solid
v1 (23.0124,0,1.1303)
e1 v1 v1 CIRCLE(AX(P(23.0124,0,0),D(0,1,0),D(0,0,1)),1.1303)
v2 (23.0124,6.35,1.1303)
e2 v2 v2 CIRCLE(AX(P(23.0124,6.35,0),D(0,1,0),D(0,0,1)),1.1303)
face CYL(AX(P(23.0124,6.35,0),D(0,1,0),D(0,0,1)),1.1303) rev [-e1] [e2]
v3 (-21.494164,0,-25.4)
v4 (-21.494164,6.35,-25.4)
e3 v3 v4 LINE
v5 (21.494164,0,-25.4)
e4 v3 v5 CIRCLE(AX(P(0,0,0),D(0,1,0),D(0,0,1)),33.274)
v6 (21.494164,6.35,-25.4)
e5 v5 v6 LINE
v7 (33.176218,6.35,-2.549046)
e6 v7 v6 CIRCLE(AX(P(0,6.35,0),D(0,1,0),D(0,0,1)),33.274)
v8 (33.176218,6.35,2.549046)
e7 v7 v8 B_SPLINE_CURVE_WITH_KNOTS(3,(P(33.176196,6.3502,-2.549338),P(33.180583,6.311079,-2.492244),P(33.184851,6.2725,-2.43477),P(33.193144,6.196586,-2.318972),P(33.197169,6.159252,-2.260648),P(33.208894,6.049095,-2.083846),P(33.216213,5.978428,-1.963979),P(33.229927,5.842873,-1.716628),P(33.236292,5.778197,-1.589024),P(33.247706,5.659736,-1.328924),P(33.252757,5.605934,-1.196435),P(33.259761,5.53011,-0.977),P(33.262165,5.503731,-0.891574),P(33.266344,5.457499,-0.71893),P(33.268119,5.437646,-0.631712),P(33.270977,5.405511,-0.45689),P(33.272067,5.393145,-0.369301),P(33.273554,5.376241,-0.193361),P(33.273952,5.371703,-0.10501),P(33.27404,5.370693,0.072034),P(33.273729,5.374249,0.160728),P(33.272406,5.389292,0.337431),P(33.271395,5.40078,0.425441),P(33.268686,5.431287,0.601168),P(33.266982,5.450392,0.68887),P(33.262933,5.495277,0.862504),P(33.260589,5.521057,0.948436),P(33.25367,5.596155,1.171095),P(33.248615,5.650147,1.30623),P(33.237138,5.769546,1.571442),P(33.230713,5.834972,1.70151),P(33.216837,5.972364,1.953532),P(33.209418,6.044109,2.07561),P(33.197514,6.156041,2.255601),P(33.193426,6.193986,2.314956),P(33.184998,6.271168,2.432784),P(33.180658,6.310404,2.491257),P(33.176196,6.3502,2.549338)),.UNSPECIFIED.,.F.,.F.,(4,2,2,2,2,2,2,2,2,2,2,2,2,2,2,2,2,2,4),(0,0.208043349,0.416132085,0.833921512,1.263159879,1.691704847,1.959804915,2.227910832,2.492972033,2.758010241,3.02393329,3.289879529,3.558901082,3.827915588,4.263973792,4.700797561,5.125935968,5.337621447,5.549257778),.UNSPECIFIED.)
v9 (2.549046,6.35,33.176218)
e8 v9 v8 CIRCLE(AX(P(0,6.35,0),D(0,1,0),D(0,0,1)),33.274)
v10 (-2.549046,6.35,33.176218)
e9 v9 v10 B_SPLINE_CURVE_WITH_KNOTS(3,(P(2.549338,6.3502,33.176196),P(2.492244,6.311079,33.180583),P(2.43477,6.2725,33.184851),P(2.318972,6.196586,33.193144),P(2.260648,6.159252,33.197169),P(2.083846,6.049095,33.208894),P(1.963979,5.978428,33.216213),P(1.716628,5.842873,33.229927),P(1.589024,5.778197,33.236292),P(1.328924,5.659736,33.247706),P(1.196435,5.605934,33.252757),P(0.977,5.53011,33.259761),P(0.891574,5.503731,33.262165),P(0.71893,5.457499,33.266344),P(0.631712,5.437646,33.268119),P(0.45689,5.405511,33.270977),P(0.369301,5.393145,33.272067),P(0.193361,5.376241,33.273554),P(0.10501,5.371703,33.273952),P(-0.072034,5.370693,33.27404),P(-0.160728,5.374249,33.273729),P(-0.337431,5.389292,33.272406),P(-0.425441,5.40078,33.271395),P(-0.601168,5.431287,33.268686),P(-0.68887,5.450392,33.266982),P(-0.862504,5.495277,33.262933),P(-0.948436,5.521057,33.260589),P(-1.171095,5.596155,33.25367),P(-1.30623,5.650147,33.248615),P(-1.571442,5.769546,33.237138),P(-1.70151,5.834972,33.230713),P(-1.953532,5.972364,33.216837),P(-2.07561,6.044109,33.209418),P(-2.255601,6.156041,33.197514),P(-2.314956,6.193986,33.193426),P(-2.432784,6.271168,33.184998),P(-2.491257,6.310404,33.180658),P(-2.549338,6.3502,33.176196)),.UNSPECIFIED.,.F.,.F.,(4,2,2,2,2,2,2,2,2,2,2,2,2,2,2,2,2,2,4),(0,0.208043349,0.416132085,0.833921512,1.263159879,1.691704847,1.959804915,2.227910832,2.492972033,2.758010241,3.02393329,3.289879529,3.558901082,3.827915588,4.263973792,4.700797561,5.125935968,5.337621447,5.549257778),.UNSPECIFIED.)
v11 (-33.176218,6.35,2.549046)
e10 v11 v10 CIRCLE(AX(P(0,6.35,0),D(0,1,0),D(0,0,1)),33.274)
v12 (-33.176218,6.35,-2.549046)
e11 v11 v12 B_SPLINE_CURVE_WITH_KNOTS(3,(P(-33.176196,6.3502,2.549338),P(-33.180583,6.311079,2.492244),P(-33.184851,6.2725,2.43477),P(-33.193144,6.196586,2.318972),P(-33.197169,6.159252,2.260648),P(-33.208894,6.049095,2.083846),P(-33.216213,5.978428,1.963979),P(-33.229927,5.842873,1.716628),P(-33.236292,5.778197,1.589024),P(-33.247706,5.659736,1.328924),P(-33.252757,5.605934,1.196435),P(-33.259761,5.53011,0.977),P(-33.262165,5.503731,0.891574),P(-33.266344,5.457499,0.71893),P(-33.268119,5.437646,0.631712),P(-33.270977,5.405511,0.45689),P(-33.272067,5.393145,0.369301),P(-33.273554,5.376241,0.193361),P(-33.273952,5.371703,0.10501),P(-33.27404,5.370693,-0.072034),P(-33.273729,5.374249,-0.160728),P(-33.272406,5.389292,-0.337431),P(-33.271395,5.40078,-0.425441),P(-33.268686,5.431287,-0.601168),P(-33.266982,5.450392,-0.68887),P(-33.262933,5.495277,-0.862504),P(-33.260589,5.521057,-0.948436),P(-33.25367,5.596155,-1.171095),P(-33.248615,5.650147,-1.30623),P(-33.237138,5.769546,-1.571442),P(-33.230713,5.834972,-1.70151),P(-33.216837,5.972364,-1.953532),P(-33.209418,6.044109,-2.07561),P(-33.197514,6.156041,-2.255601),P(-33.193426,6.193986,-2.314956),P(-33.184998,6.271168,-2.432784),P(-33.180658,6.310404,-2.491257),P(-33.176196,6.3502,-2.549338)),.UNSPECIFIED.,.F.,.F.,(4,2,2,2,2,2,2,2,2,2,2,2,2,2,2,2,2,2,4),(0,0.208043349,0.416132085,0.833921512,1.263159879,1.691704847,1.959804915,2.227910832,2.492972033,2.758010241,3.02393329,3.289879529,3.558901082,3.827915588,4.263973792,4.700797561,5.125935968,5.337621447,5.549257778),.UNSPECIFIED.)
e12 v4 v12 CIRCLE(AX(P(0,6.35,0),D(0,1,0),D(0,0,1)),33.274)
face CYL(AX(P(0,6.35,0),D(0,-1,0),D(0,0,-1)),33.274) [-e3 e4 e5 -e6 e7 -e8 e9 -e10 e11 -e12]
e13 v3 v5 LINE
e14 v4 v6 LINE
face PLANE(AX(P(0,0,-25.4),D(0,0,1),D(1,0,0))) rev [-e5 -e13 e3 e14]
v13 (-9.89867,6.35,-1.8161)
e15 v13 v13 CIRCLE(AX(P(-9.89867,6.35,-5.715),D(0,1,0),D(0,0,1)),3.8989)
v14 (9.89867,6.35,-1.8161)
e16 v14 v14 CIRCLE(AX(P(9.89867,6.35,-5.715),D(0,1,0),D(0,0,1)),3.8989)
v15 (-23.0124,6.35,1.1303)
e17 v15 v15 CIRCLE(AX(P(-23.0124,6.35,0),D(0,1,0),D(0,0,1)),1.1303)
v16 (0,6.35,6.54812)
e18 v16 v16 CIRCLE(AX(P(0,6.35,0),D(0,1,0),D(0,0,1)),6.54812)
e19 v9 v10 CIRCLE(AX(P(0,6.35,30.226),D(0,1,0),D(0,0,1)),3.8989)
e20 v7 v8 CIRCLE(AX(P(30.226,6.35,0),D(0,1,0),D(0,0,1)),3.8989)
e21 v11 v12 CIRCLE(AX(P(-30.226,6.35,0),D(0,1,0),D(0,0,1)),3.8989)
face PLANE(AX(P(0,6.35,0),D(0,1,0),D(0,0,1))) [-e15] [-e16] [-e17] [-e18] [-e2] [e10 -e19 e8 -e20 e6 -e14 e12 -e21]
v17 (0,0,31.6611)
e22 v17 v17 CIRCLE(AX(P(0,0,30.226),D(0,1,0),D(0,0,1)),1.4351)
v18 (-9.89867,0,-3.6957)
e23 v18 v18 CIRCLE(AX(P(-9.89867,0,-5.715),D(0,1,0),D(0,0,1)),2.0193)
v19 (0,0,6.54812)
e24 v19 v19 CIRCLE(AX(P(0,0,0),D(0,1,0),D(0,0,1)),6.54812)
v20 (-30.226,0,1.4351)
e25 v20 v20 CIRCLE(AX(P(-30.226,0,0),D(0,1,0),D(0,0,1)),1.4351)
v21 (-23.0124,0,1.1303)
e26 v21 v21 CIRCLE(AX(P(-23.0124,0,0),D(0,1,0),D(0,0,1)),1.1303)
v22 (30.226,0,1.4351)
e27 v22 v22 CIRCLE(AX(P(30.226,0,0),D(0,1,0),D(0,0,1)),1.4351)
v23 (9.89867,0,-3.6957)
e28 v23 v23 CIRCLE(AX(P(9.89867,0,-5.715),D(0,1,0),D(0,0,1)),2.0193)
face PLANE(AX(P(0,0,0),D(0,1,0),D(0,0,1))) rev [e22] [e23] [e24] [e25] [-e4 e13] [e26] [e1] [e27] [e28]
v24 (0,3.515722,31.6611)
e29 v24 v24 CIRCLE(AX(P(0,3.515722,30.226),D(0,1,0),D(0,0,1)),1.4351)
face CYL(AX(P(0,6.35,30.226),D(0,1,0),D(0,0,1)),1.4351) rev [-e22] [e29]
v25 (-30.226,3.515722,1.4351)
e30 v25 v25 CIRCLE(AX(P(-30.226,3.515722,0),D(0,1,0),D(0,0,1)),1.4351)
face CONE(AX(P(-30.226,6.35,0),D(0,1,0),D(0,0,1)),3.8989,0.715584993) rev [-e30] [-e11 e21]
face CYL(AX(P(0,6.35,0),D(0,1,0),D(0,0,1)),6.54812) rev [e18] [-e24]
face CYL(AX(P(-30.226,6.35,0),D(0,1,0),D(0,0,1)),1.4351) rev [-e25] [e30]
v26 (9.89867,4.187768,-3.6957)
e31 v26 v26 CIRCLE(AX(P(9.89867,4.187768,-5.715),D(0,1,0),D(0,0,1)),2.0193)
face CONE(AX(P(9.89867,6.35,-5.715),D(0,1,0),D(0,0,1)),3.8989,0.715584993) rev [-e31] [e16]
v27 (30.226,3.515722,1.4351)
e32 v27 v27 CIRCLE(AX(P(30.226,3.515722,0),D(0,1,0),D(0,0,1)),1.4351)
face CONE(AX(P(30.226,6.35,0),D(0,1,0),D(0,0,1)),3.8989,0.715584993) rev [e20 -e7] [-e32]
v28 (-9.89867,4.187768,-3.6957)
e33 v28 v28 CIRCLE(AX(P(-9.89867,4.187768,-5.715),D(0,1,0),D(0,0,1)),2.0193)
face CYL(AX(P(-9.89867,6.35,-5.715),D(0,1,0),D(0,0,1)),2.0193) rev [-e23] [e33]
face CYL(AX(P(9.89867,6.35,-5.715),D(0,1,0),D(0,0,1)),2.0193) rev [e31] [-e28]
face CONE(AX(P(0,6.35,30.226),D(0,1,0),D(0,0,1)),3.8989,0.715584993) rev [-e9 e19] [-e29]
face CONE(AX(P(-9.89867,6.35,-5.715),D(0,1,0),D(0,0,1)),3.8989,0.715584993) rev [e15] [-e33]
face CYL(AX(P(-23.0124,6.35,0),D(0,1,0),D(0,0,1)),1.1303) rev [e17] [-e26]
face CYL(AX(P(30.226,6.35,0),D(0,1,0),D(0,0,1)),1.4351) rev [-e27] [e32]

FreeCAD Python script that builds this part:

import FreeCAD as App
import Part
import Sketcher
from FreeCAD import Vector
Q = App.Units.Quantity

doc = App.newDocument("Part")
params = doc.addObject("Spreadsheet::Sheet", "Params")
for row, (alias, value) in enumerate([
    ("sketch1_diameter", "2.62 in"),
    ("pad1_length", "0.25 in"),
    ("sketch2_diameter", "0.113 in"),
    ("hole_diameter", "0.113 in"),
    ("hole_depth", "0.401 in"),
    ("hole_csink_diameter", "0.307 in"),
    ("sketch3_diameter", "0.089 in"),
    ("hole2_diameter", "0.089 in"),
    ("hole3_diameter", "0.5156 in"),
    ("hole3_depth", "0.25 in"),
    ("sketch5_diameter", "0.159 in"),
    ("hole4_diameter", "0.159 in"),
    ("hole4_csink_diameter", "0.307 in"),
], start=1):
    params.set(f"A{row}", alias)
    params.set(f"B{row}", "=" + value)
    params.setAlias(f"B{row}", alias)

body = doc.addObject("PartDesign::Body", "Body")

# Sketch on XZ plane
sketch1 = body.newObject("Sketcher::SketchObject", "Sketch")
sketch1.AttachmentSupport = (doc.getObject("XZ_Plane"), [""])
sketch1.MapMode = "FlatFace"
sketch1.addGeometry(Part.Circle(Vector(0, 0, 0), Vector(0, 0, 1), 33), False)
sketch1.addConstraint([
    Sketcher.Constraint("Coincident", 0, 3, -1, 1),
    Sketcher.Constraint("Diameter", 0, Q("2.62 in")),
])
sketch1.setExpression("Constraints[1]", "Params.sketch1_diameter")
pad1 = body.newObject("PartDesign::Pad", "Pad")
pad1.Profile = sketch1
pad1.setExpression("Length", "Params.pad1_length")
pad1.Reversed = True

# Sketch on XZ plane
sketch2 = body.newObject("Sketcher::SketchObject", "Sketch001")
sketch2.AttachmentSupport = (doc.getObject("XZ_Plane"), [""])
sketch2.MapMode = "FlatFace"
sketch2.AttachmentOffset = App.Placement(Vector(0, 0, -0.25 * 25.4), App.Rotation())
sketch2.addGeometry([
    Part.Circle(Vector(30.2, 0, 0), Vector(0, 0, 1), 1.4),
    Part.Circle(Vector(-30.2, 0, 0), Vector(0, 0, 1), 1.4),
    Part.Circle(Vector(0, 30.2, 0), Vector(0, 0, 1), 1.4),
], False)
sketch2.addConstraint([
    Sketcher.Constraint("Equal", 0, 1),
    Sketcher.Constraint("Equal", 1, 2),
    Sketcher.Constraint("Symmetric", 0, 3, 1, 3, -1, 1),
    Sketcher.Constraint("PointOnObject", 0, 3, -1),
    Sketcher.Constraint("PointOnObject", 2, 3, -2),
    Sketcher.Constraint("Diameter", 0, Q("0.113 in")),
    Sketcher.Constraint("DistanceX", -1, 1, 0, 3, Q("1.19 in")),
    Sketcher.Constraint("DistanceY", -1, 1, 2, 3, Q("1.19 in")),
])
sketch2.setExpression("Constraints[5]", "Params.sketch2_diameter")
doc.recompute()
hole = body.newObject("PartDesign::Hole", "Hole")
hole.Profile = sketch2
hole.ThreadType = "None"
hole.setExpression("Diameter", "Params.hole_diameter")
hole.DepthType = "Dimension"
hole.setExpression("Depth", "Params.hole_depth")
hole.DrillPoint = "Angled"
hole.DrillPointAngle = 118
hole.HoleCutType = "Countersink"
hole.setExpression("HoleCutDiameter", "Params.hole_csink_diameter")
hole.HoleCutCountersinkAngle = 82
hole.Reversed = True

# Sketch on XZ plane
sketch3 = body.newObject("Sketcher::SketchObject", "Sketch002")
sketch3.AttachmentSupport = (doc.getObject("XZ_Plane"), [""])
sketch3.MapMode = "FlatFace"
sketch3.AttachmentOffset = App.Placement(Vector(0, 0, -0.25 * 25.4), App.Rotation())
sketch3.addGeometry([
    Part.Circle(Vector(23, 0, 0), Vector(0, 0, 1), 1.1),
    Part.Circle(Vector(-23, 0, 0), Vector(0, 0, 1), 1.1),
], False)
sketch3.addConstraint([
    Sketcher.Constraint("Equal", 0, 1),
    Sketcher.Constraint("Symmetric", 0, 3, 1, 3, -1, 1),
    Sketcher.Constraint("PointOnObject", 0, 3, -1),
    Sketcher.Constraint("Diameter", 0, Q("0.089 in")),
    Sketcher.Constraint("DistanceX", -1, 1, 0, 3, Q("0.906 in")),
])
sketch3.setExpression("Constraints[3]", "Params.sketch3_diameter")
doc.recompute()
hole2 = body.newObject("PartDesign::Hole", "Hole001")
hole2.Profile = sketch3
hole2.ThreadType = "None"
hole2.setExpression("Diameter", "Params.hole2_diameter")
hole2.DepthType = "ThroughAll"
hole2.Reversed = True

# Sketch on XZ plane
sketch4 = body.newObject("Sketcher::SketchObject", "Sketch003")
sketch4.AttachmentSupport = (doc.getObject("XZ_Plane"), [""])
sketch4.MapMode = "FlatFace"
sketch4.AttachmentOffset = App.Placement(Vector(0, 0, -0.25 * 25.4), App.Rotation())
sketch4.addGeometry(Part.Circle(Vector(0, 0, 0), Vector(0, 0, 1), 7), False)
sketch4.addConstraint([
    Sketcher.Constraint("Coincident", 0, 3, -1, 1),
    Sketcher.Constraint("Diameter", 0, Q("0.5156 in")),
])
doc.recompute()
hole3 = body.newObject("PartDesign::Hole", "Hole002")
hole3.Profile = sketch4
hole3.ThreadType = "None"
hole3.setExpression("Diameter", "Params.hole3_diameter")
hole3.DepthType = "Dimension"
hole3.setExpression("Depth", "Params.hole3_depth")
hole3.DrillPoint = "Angled"
hole3.DrillPointAngle = 118
hole3.Reversed = True

# Sketch on XZ plane
sketch5 = body.newObject("Sketcher::SketchObject", "Sketch004")
sketch5.AttachmentSupport = (doc.getObject("XZ_Plane"), [""])
sketch5.MapMode = "FlatFace"
sketch5.AttachmentOffset = App.Placement(Vector(0, 0, -0.25 * 25.4), App.Rotation())
sketch5.addGeometry([
    Part.Circle(Vector(-9.9, -5.7, 0), Vector(0, 0, 1), 2),
    Part.Circle(Vector(9.9, -5.7, 0), Vector(0, 0, 1), 2),
], False)
sketch5.addConstraint([
    Sketcher.Constraint("Equal", 0, 1),
    Sketcher.Constraint("Symmetric", 0, 3, 1, 3, -2),
    Sketcher.Constraint("Diameter", 0, Q("0.159 in")),
    Sketcher.Constraint("DistanceY", 0, 3, -1, 1, Q("0.225 in")),
    Sketcher.Constraint("DistanceX", 0, 3, -1, 1, Q("9.89867 mm")),
])
sketch5.setExpression("Constraints[2]", "Params.sketch5_diameter")
doc.recompute()
hole4 = body.newObject("PartDesign::Hole", "Hole003")
hole4.Profile = sketch5
hole4.ThreadType = "None"
hole4.setExpression("Diameter", "Params.hole4_diameter")
hole4.DepthType = "ThroughAll"
hole4.HoleCutType = "Countersink"
hole4.setExpression("HoleCutDiameter", "Params.hole4_csink_diameter")
hole4.HoleCutCountersinkAngle = 82
hole4.Reversed = True

# Sketch on XZ plane
sketch6 = body.newObject("Sketcher::SketchObject", "Sketch005")
sketch6.AttachmentSupport = (doc.getObject("XZ_Plane"), [""])
sketch6.MapMode = "FlatFace"
sketch6.AttachmentOffset = App.Placement(Vector(0, 0, -0.25 * 25.4), App.Rotation())
sketch6.addGeometry([
    Part.LineSegment(Vector(-192, -25, 0), Vector(192, -25, 0)),
    Part.LineSegment(Vector(192, -25, 0), Vector(192, -366, 0)),
    Part.LineSegment(Vector(192, -366, 0), Vector(-192, -366, 0)),
    Part.LineSegment(Vector(-192, -366, 0), Vector(-192, -25, 0)),
], False)
sketch6.addConstraint([
    Sketcher.Constraint("Coincident", 0, 2, 1, 1),
    Sketcher.Constraint("Coincident", 1, 2, 2, 1),
    Sketcher.Constraint("Coincident", 2, 2, 3, 1),
    Sketcher.Constraint("Coincident", 3, 2, 0, 1),
    Sketcher.Constraint("Horizontal", 0),
    Sketcher.Constraint("Vertical", 1),
    Sketcher.Constraint("Horizontal", 2),
    Sketcher.Constraint("Vertical", 3),
    Sketcher.Constraint("DistanceY", 0, 2, -1, 1, Q("1 in")),
    Sketcher.Constraint("DistanceY", 1, 2, 1, 1, Q("341.053019 mm")),
    Sketcher.Constraint("DistanceX", 0, 1, 0, 2, Q("384.041346 mm")),
    Sketcher.Constraint("DistanceX", -1, 1, 0, 2, Q("192.020673 mm")),
])
pocket1 = body.newObject("PartDesign::Pocket", "Pocket")
pocket1.Profile = sketch6
pocket1.Type = "ThroughAll"
pocket1.Reversed = True

doc.recompute()
